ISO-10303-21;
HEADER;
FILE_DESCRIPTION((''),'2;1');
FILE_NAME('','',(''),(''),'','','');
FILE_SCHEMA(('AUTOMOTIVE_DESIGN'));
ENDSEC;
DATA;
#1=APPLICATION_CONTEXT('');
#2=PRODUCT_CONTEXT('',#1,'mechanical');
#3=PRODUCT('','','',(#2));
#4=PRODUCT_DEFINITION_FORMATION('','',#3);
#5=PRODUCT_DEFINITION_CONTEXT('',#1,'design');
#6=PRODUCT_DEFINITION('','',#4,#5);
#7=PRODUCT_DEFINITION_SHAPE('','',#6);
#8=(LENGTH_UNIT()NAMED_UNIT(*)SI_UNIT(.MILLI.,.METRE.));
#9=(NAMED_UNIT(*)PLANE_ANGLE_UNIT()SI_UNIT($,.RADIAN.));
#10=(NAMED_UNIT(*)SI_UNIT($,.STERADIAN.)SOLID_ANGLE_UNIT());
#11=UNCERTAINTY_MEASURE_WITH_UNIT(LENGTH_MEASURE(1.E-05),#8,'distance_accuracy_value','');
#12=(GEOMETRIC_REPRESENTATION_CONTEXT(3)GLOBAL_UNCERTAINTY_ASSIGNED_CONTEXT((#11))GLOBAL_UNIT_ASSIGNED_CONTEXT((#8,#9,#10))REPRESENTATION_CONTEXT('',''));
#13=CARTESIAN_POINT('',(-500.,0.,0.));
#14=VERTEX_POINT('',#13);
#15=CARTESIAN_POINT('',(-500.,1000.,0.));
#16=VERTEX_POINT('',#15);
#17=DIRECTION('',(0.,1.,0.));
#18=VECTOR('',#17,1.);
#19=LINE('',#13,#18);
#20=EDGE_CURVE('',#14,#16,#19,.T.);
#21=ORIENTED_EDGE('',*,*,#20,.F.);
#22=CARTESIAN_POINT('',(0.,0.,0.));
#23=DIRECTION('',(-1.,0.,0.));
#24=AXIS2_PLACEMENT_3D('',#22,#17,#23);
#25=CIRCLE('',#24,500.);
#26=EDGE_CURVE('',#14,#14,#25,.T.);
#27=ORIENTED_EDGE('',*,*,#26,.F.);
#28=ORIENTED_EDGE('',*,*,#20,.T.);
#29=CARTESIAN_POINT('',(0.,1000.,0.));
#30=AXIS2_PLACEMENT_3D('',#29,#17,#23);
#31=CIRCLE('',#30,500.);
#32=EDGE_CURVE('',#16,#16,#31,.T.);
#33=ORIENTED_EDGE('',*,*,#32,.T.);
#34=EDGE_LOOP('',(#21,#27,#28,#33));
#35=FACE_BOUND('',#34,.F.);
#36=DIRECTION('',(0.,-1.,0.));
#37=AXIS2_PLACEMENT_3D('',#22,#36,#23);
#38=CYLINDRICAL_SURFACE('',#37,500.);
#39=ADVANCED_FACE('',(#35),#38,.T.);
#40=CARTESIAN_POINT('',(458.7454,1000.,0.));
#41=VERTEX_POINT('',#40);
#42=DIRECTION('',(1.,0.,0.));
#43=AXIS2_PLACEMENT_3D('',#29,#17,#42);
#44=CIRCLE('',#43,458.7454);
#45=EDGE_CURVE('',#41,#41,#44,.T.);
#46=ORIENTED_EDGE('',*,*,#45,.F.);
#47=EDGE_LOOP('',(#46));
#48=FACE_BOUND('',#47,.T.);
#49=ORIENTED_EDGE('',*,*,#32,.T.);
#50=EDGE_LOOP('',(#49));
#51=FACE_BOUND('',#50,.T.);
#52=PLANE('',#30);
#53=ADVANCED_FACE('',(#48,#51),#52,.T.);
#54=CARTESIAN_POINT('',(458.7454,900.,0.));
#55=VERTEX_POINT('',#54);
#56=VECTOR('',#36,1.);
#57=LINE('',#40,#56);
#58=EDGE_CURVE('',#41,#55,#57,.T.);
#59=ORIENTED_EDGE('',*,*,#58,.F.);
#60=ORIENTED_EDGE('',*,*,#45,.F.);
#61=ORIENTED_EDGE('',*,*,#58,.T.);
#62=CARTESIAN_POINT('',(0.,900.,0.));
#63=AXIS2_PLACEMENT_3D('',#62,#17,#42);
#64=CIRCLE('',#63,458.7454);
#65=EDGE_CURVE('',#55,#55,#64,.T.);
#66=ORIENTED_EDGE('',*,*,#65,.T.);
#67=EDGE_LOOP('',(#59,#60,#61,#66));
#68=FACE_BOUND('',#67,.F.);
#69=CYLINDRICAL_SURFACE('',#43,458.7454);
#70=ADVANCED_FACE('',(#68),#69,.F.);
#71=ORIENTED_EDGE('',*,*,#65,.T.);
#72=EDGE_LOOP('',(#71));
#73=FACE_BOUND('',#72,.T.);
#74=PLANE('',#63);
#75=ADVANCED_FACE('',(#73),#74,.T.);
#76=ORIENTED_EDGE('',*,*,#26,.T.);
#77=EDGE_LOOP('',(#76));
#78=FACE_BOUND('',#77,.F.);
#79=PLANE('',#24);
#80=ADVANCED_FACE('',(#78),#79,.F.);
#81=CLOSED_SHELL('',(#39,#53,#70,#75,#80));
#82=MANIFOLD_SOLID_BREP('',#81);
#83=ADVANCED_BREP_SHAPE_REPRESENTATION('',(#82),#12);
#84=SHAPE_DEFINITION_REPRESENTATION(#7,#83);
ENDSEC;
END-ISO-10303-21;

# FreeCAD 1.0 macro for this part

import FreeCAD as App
import Part
import Sketcher

V = App.Vector
Q = App.Units.Quantity

doc = App.newDocument("Part")
body = doc.addObject("PartDesign::Body", "Body")

sketch1 = body.newObject("Sketcher::SketchObject", "Sketch")
sketch1.AttachmentSupport = (doc.getObject("XZ_Plane"), [""])
sketch1.MapMode = "FlatFace"
sketch1.addGeometry(Part.Circle(V(0, 0, 0), V(0, 0, 1), 500), False)
sketch1.addConstraint([
    Sketcher.Constraint("Coincident", 0, 3, -1, 1),
    Sketcher.Constraint("Diameter", 0, Q("1000 mm")),
])
pad1 = body.newObject("PartDesign::Pad", "Pad")
pad1.Profile = sketch1
pad1.Length = 1000
pad1.Reversed = True

sketch2 = body.newObject("Sketcher::SketchObject", "Sketch001")
sketch2.AttachmentSupport = (doc.getObject("XZ_Plane"), [""])
sketch2.MapMode = "FlatFace"
sketch2.AttachmentOffset = App.Placement(V(0, 0, -1000), App.Rotation())
sketch2.addGeometry(Part.Circle(V(0, 0, 0), V(0, 0, 1), 459), False)
sketch2.addConstraint([
    Sketcher.Constraint("Coincident", 0, 3, -1, 1),
    Sketcher.Constraint("Diameter", 0, Q("917.4908 mm")),
])
pocket1 = body.newObject("PartDesign::Pocket", "Pocket")
pocket1.Profile = sketch2
pocket1.Length = 100
pocket1.Reversed = True

doc.recompute()
